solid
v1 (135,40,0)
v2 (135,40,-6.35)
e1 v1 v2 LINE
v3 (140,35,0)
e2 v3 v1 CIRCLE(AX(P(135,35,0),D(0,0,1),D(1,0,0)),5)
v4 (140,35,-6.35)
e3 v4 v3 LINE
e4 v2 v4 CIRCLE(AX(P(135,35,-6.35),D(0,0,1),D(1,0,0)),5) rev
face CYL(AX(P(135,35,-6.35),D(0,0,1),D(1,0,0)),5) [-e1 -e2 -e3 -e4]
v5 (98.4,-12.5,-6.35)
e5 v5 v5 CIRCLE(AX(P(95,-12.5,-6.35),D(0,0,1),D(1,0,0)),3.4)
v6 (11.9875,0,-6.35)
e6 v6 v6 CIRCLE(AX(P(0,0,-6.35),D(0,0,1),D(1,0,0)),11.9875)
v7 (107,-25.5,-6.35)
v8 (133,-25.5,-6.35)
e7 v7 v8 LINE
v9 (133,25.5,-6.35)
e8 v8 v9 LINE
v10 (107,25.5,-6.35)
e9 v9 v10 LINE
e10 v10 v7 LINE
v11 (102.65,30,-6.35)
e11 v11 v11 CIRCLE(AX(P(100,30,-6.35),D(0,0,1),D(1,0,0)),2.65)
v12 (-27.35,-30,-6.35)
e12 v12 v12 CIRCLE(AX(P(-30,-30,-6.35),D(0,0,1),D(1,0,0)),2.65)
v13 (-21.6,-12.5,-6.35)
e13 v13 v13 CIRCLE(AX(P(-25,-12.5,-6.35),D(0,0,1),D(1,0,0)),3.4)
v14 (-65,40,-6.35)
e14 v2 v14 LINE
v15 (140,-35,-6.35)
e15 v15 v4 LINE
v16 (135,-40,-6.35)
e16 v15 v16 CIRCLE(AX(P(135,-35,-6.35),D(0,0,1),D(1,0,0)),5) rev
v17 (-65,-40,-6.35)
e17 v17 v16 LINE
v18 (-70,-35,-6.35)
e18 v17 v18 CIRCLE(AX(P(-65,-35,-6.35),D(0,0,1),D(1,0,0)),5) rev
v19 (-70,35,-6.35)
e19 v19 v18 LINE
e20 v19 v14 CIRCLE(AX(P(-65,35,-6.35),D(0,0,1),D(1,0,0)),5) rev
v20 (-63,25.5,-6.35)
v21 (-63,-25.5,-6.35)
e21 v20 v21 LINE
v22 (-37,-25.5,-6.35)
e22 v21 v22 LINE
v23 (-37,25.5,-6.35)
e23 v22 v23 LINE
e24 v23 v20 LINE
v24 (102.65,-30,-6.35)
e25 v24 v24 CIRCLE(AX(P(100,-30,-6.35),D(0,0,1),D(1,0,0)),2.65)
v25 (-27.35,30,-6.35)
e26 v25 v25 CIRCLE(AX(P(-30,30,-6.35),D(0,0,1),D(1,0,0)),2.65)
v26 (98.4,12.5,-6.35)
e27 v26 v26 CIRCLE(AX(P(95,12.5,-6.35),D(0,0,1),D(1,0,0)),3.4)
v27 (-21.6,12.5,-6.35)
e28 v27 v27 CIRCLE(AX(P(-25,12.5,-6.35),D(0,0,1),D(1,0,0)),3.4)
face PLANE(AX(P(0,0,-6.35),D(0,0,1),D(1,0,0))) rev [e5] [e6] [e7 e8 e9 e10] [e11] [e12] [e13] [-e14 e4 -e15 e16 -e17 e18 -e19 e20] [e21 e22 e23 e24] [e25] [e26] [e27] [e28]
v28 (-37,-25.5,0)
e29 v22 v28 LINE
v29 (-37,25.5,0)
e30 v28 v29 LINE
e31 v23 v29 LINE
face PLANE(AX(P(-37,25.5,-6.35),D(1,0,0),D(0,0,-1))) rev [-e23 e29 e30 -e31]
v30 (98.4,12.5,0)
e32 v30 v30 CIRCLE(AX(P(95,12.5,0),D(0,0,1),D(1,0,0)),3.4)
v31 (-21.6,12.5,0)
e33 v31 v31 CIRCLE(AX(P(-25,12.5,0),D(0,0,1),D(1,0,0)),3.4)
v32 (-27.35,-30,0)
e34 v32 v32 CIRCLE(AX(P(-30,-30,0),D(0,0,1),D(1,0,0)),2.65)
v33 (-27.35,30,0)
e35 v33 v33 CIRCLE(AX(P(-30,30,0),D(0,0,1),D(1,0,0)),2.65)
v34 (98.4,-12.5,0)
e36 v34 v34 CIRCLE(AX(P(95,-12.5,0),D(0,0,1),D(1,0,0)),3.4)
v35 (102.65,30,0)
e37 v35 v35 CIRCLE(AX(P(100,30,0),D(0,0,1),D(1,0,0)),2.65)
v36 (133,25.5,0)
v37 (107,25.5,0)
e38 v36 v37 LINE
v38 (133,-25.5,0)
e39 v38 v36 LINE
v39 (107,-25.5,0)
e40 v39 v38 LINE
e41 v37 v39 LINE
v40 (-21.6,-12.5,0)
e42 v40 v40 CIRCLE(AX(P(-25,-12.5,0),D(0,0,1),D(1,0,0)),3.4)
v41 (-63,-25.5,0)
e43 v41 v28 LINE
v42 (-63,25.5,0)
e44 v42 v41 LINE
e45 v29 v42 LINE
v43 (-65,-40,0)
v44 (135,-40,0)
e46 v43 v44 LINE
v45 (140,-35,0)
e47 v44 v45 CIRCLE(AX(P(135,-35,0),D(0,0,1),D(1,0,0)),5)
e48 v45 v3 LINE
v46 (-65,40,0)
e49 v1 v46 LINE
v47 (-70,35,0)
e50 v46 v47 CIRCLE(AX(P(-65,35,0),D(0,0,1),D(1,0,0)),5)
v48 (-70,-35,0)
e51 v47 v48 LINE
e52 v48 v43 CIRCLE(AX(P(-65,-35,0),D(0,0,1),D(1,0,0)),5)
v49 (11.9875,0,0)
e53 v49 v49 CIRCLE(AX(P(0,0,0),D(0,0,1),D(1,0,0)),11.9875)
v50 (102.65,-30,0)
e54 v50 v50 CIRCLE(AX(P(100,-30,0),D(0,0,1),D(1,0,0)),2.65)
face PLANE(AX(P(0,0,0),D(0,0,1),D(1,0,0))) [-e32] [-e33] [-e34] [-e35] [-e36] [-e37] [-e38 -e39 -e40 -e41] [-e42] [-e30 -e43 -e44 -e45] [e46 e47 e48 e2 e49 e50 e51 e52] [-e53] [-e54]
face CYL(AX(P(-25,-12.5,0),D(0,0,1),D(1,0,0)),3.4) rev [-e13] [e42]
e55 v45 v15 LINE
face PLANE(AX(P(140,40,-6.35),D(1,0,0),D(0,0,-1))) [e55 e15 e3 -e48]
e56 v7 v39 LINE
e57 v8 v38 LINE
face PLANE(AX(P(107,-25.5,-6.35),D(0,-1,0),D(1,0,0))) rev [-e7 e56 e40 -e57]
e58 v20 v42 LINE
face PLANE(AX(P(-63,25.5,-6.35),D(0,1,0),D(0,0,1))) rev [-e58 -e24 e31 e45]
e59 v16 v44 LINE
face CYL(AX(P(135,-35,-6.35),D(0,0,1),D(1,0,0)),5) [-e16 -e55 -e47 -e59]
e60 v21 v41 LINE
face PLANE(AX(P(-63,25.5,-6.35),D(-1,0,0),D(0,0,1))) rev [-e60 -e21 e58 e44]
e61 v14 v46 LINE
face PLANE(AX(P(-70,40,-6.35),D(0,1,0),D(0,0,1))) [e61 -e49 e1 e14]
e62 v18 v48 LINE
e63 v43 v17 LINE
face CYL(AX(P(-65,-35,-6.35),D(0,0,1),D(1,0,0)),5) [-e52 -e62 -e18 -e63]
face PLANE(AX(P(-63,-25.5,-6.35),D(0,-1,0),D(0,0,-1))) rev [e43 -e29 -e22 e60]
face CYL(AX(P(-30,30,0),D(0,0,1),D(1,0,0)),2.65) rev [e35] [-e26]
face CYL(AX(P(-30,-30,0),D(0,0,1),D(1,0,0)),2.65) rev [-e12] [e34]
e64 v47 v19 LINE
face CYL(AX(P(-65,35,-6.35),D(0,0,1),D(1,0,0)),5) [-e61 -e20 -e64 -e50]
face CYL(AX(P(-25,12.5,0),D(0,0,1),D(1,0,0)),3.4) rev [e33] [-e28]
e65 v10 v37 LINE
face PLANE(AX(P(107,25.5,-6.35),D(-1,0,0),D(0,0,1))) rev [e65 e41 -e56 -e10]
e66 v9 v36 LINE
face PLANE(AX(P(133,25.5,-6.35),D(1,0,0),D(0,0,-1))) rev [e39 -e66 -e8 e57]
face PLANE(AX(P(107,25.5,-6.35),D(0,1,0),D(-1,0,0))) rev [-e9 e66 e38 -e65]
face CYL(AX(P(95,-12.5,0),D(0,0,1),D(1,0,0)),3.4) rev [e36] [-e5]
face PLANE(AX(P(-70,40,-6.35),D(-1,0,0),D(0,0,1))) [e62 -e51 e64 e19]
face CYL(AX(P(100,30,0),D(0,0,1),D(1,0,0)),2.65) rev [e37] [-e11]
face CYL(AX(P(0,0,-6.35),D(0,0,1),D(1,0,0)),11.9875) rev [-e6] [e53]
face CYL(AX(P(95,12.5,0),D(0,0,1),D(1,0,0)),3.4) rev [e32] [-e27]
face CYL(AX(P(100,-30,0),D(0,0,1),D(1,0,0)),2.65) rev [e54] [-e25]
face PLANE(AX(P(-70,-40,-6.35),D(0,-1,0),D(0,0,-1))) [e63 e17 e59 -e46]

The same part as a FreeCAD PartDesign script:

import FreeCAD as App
import Part
import Sketcher
from FreeCAD import Vector
Q = App.Units.Quantity


def edges_at(feature, points):
    """Names of the edges that pass closest to the given points."""
    edges = feature.Shape.Edges
    near = lambda p: min(range(len(edges)), key=lambda i: edges[i].distToShape(Part.Vertex(*p))[0])
    return sorted({f"Edge{near(p) + 1}" for p in points})


def add_polygon(sketch, points):
    """Adds a closed chain of lines whose ends are joined by coincident constraints."""
    first, n = sketch.GeometryCount, len(points)
    for a, b in zip(points, points[1:] + points[:1]):
        sketch.addGeometry(Part.LineSegment(App.Vector(*a, 0), App.Vector(*b, 0)), False)
    for i in range(n):
        sketch.addConstraint(Sketcher.Constraint("Coincident", first + i, 2, first + (i + 1) % n, 1))

doc = App.newDocument("Part")
body = doc.addObject("PartDesign::Body", "Body")

sketch1 = body.newObject("Sketcher::SketchObject", "Sketch")
sketch1.AttachmentSupport = (doc.getObject("XY_Plane"), [""])
sketch1.MapMode = "FlatFace"
add_polygon(sketch1, [(-70, 40), (-70, -40), (140, -40), (140, 40)])
add_polygon(sketch1, [(-37, -26), (-63, -26), (-63, 26), (-37, 26)])
sketch1.addGeometry(Part.Circle(Vector(0, 0, 0), Vector(0, 0, 1), 12), False)
add_polygon(sketch1, [(133, -26), (107, -26), (107, 26), (133, 26)])
sketch1.addConstraint(Sketcher.Constraint("Vertical", 0))
sketch1.addConstraint(Sketcher.Constraint("Horizontal", 1))
sketch1.addConstraint(Sketcher.Constraint("Vertical", 2))
sketch1.addConstraint(Sketcher.Constraint("Horizontal", 3))
sketch1.addConstraint(Sketcher.Constraint("Horizontal", 4))
sketch1.addConstraint(Sketcher.Constraint("Vertical", 5))
sketch1.addConstraint(Sketcher.Constraint("Horizontal", 6))
sketch1.addConstraint(Sketcher.Constraint("Vertical", 7))
sketch1.addConstraint(Sketcher.Constraint("Horizontal", 9))
sketch1.addConstraint(Sketcher.Constraint("Vertical", 10))
sketch1.addConstraint(Sketcher.Constraint("Horizontal", 11))
sketch1.addConstraint(Sketcher.Constraint("Vertical", 12))
sketch1.addConstraint(Sketcher.Constraint("Coincident", 8, 3, -1, 1))
sketch1.addConstraint(Sketcher.Constraint("Horizontal", 7, 2, 9, 2))
sketch1.addConstraint(Sketcher.Constraint("Horizontal", 6, 2, 10, 2))
sketch1.addConstraint(Sketcher.Constraint("Equal", 6, 9))
sketch1.addConstraint(Sketcher.Constraint("DistanceX", 1, 1, 1, 2, Q("210 mm")))
sketch1.addConstraint(Sketcher.Constraint("DistanceX", 4, 2, 4, 1, Q("26 mm")))
sketch1.addConstraint(Sketcher.Constraint("DistanceY", 0, 2, 0, 1, Q("80 mm")))
sketch1.addConstraint(Sketcher.Constraint("DistanceY", 5, 1, 5, 2, Q("51 mm")))
sketch1.addConstraint(Sketcher.Constraint("Diameter", 8, Q("23.975 mm")))
sketch1.addConstraint(Sketcher.Constraint("DistanceX", 0, 2, -1, 1, Q("70 mm")))
sketch1.addConstraint(Sketcher.Constraint("DistanceY", 0, 2, -1, 1, Q("40 mm")))
sketch1.addConstraint(Sketcher.Constraint("DistanceX", 4, 2, -1, 1, Q("63 mm")))
sketch1.addConstraint(Sketcher.Constraint("DistanceX", -1, 1, 9, 2, Q("107 mm")))
sketch1.addConstraint(Sketcher.Constraint("DistanceY", 4, 2, -1, 1, Q("25.5 mm")))
pad1 = body.newObject("PartDesign::Pad", "Pad")
pad1.Profile = sketch1
pad1.Length = 6.35
pad1.Reversed = True

sketch2 = body.newObject("Sketcher::SketchObject", "Sketch001")
sketch2.AttachmentSupport = (doc.getObject("XY_Plane"), [""])
sketch2.MapMode = "FlatFace"
sketch2.addGeometry(Part.Circle(Vector(-30, 30, 0), Vector(0, 0, 1), 2.6), False)
sketch2.addGeometry(Part.Circle(Vector(-30, -30, 0), Vector(0, 0, 1), 2.6), False)
sketch2.addGeometry(Part.Circle(Vector(100, -30, 0), Vector(0, 0, 1), 2.6), False)
sketch2.addGeometry(Part.Circle(Vector(100, 30, 0), Vector(0, 0, 1), 2.6), False)
sketch2.addConstraint(Sketcher.Constraint("Equal", 0, 1))
sketch2.addConstraint(Sketcher.Constraint("Equal", 1, 2))
sketch2.addConstraint(Sketcher.Constraint("Equal", 2, 3))
sketch2.addConstraint(Sketcher.Constraint("Symmetric", 0, 3, 1, 3, -1))
sketch2.addConstraint(Sketcher.Constraint("Symmetric", 2, 3, 3, 3, -1))
sketch2.addConstraint(Sketcher.Constraint("Horizontal", 1, 3, 2, 3))
sketch2.addConstraint(Sketcher.Constraint("Diameter", 0, Q("5.3 mm")))
sketch2.addConstraint(Sketcher.Constraint("DistanceX", 0, 3, -1, 1, Q("30 mm")))
sketch2.addConstraint(Sketcher.Constraint("DistanceY", -1, 1, 0, 3, Q("30 mm")))
sketch2.addConstraint(Sketcher.Constraint("DistanceX", -1, 1, 2, 3, Q("100 mm")))
doc.recompute()
hole = body.newObject("PartDesign::Hole", "Hole")
hole.Profile = sketch2
hole.ThreadType = "None"
hole.Diameter = 5.3
hole.DepthType = "ThroughAll"
doc.recompute()

fillet = body.newObject("PartDesign::Fillet", "Fillet")
fillet.Base = (hole, edges_at(hole, [
    (-70, 40, -3.175),
    (140, 40, -3.175),
    (140, -40, -3.175),
    (-70, -40, -3.175),
]))
fillet.Radius = 5

sketch3 = body.newObject("Sketcher::SketchObject", "Sketch002")
sketch3.AttachmentSupport = (doc.getObject("XY_Plane"), [""])
sketch3.MapMode = "FlatFace"
sketch3.addGeometry(Part.Circle(Vector(-25, 12.5, 0), Vector(0, 0, 1), 3.4), False)
sketch3.addGeometry(Part.Circle(Vector(-25, -12.5, 0), Vector(0, 0, 1), 3.4), False)
sketch3.addGeometry(Part.Circle(Vector(95, 12.5, 0), Vector(0, 0, 1), 3.4), False)
sketch3.addGeometry(Part.Circle(Vector(95, -12.5, 0), Vector(0, 0, 1), 3.4), False)
sketch3.addConstraint(Sketcher.Constraint("Equal", 0, 1))
sketch3.addConstraint(Sketcher.Constraint("Equal", 1, 2))
sketch3.addConstraint(Sketcher.Constraint("Equal", 2, 3))
sketch3.addConstraint(Sketcher.Constraint("Symmetric", 0, 3, 1, 3, -1))
sketch3.addConstraint(Sketcher.Constraint("Symmetric", 2, 3, 3, 3, -1))
sketch3.addConstraint(Sketcher.Constraint("Horizontal", 0, 3, 2, 3))
sketch3.addConstraint(Sketcher.Constraint("Diameter", 0, Q("6.8 mm")))
sketch3.addConstraint(Sketcher.Constraint("DistanceX", 0, 3, -1, 1, Q("25 mm")))
sketch3.addConstraint(Sketcher.Constraint("DistanceX", -1, 1, 2, 3, Q("95 mm")))
sketch3.addConstraint(Sketcher.Constraint("DistanceY", 1, 3, 0, 3, Q("25 mm")))
doc.recompute()
hole2 = body.newObject("PartDesign::Hole", "Hole001")
hole2.Profile = sketch3
hole2.ThreadType = "None"
hole2.Diameter = 6.8
hole2.DepthType = "ThroughAll"

doc.recompute()
